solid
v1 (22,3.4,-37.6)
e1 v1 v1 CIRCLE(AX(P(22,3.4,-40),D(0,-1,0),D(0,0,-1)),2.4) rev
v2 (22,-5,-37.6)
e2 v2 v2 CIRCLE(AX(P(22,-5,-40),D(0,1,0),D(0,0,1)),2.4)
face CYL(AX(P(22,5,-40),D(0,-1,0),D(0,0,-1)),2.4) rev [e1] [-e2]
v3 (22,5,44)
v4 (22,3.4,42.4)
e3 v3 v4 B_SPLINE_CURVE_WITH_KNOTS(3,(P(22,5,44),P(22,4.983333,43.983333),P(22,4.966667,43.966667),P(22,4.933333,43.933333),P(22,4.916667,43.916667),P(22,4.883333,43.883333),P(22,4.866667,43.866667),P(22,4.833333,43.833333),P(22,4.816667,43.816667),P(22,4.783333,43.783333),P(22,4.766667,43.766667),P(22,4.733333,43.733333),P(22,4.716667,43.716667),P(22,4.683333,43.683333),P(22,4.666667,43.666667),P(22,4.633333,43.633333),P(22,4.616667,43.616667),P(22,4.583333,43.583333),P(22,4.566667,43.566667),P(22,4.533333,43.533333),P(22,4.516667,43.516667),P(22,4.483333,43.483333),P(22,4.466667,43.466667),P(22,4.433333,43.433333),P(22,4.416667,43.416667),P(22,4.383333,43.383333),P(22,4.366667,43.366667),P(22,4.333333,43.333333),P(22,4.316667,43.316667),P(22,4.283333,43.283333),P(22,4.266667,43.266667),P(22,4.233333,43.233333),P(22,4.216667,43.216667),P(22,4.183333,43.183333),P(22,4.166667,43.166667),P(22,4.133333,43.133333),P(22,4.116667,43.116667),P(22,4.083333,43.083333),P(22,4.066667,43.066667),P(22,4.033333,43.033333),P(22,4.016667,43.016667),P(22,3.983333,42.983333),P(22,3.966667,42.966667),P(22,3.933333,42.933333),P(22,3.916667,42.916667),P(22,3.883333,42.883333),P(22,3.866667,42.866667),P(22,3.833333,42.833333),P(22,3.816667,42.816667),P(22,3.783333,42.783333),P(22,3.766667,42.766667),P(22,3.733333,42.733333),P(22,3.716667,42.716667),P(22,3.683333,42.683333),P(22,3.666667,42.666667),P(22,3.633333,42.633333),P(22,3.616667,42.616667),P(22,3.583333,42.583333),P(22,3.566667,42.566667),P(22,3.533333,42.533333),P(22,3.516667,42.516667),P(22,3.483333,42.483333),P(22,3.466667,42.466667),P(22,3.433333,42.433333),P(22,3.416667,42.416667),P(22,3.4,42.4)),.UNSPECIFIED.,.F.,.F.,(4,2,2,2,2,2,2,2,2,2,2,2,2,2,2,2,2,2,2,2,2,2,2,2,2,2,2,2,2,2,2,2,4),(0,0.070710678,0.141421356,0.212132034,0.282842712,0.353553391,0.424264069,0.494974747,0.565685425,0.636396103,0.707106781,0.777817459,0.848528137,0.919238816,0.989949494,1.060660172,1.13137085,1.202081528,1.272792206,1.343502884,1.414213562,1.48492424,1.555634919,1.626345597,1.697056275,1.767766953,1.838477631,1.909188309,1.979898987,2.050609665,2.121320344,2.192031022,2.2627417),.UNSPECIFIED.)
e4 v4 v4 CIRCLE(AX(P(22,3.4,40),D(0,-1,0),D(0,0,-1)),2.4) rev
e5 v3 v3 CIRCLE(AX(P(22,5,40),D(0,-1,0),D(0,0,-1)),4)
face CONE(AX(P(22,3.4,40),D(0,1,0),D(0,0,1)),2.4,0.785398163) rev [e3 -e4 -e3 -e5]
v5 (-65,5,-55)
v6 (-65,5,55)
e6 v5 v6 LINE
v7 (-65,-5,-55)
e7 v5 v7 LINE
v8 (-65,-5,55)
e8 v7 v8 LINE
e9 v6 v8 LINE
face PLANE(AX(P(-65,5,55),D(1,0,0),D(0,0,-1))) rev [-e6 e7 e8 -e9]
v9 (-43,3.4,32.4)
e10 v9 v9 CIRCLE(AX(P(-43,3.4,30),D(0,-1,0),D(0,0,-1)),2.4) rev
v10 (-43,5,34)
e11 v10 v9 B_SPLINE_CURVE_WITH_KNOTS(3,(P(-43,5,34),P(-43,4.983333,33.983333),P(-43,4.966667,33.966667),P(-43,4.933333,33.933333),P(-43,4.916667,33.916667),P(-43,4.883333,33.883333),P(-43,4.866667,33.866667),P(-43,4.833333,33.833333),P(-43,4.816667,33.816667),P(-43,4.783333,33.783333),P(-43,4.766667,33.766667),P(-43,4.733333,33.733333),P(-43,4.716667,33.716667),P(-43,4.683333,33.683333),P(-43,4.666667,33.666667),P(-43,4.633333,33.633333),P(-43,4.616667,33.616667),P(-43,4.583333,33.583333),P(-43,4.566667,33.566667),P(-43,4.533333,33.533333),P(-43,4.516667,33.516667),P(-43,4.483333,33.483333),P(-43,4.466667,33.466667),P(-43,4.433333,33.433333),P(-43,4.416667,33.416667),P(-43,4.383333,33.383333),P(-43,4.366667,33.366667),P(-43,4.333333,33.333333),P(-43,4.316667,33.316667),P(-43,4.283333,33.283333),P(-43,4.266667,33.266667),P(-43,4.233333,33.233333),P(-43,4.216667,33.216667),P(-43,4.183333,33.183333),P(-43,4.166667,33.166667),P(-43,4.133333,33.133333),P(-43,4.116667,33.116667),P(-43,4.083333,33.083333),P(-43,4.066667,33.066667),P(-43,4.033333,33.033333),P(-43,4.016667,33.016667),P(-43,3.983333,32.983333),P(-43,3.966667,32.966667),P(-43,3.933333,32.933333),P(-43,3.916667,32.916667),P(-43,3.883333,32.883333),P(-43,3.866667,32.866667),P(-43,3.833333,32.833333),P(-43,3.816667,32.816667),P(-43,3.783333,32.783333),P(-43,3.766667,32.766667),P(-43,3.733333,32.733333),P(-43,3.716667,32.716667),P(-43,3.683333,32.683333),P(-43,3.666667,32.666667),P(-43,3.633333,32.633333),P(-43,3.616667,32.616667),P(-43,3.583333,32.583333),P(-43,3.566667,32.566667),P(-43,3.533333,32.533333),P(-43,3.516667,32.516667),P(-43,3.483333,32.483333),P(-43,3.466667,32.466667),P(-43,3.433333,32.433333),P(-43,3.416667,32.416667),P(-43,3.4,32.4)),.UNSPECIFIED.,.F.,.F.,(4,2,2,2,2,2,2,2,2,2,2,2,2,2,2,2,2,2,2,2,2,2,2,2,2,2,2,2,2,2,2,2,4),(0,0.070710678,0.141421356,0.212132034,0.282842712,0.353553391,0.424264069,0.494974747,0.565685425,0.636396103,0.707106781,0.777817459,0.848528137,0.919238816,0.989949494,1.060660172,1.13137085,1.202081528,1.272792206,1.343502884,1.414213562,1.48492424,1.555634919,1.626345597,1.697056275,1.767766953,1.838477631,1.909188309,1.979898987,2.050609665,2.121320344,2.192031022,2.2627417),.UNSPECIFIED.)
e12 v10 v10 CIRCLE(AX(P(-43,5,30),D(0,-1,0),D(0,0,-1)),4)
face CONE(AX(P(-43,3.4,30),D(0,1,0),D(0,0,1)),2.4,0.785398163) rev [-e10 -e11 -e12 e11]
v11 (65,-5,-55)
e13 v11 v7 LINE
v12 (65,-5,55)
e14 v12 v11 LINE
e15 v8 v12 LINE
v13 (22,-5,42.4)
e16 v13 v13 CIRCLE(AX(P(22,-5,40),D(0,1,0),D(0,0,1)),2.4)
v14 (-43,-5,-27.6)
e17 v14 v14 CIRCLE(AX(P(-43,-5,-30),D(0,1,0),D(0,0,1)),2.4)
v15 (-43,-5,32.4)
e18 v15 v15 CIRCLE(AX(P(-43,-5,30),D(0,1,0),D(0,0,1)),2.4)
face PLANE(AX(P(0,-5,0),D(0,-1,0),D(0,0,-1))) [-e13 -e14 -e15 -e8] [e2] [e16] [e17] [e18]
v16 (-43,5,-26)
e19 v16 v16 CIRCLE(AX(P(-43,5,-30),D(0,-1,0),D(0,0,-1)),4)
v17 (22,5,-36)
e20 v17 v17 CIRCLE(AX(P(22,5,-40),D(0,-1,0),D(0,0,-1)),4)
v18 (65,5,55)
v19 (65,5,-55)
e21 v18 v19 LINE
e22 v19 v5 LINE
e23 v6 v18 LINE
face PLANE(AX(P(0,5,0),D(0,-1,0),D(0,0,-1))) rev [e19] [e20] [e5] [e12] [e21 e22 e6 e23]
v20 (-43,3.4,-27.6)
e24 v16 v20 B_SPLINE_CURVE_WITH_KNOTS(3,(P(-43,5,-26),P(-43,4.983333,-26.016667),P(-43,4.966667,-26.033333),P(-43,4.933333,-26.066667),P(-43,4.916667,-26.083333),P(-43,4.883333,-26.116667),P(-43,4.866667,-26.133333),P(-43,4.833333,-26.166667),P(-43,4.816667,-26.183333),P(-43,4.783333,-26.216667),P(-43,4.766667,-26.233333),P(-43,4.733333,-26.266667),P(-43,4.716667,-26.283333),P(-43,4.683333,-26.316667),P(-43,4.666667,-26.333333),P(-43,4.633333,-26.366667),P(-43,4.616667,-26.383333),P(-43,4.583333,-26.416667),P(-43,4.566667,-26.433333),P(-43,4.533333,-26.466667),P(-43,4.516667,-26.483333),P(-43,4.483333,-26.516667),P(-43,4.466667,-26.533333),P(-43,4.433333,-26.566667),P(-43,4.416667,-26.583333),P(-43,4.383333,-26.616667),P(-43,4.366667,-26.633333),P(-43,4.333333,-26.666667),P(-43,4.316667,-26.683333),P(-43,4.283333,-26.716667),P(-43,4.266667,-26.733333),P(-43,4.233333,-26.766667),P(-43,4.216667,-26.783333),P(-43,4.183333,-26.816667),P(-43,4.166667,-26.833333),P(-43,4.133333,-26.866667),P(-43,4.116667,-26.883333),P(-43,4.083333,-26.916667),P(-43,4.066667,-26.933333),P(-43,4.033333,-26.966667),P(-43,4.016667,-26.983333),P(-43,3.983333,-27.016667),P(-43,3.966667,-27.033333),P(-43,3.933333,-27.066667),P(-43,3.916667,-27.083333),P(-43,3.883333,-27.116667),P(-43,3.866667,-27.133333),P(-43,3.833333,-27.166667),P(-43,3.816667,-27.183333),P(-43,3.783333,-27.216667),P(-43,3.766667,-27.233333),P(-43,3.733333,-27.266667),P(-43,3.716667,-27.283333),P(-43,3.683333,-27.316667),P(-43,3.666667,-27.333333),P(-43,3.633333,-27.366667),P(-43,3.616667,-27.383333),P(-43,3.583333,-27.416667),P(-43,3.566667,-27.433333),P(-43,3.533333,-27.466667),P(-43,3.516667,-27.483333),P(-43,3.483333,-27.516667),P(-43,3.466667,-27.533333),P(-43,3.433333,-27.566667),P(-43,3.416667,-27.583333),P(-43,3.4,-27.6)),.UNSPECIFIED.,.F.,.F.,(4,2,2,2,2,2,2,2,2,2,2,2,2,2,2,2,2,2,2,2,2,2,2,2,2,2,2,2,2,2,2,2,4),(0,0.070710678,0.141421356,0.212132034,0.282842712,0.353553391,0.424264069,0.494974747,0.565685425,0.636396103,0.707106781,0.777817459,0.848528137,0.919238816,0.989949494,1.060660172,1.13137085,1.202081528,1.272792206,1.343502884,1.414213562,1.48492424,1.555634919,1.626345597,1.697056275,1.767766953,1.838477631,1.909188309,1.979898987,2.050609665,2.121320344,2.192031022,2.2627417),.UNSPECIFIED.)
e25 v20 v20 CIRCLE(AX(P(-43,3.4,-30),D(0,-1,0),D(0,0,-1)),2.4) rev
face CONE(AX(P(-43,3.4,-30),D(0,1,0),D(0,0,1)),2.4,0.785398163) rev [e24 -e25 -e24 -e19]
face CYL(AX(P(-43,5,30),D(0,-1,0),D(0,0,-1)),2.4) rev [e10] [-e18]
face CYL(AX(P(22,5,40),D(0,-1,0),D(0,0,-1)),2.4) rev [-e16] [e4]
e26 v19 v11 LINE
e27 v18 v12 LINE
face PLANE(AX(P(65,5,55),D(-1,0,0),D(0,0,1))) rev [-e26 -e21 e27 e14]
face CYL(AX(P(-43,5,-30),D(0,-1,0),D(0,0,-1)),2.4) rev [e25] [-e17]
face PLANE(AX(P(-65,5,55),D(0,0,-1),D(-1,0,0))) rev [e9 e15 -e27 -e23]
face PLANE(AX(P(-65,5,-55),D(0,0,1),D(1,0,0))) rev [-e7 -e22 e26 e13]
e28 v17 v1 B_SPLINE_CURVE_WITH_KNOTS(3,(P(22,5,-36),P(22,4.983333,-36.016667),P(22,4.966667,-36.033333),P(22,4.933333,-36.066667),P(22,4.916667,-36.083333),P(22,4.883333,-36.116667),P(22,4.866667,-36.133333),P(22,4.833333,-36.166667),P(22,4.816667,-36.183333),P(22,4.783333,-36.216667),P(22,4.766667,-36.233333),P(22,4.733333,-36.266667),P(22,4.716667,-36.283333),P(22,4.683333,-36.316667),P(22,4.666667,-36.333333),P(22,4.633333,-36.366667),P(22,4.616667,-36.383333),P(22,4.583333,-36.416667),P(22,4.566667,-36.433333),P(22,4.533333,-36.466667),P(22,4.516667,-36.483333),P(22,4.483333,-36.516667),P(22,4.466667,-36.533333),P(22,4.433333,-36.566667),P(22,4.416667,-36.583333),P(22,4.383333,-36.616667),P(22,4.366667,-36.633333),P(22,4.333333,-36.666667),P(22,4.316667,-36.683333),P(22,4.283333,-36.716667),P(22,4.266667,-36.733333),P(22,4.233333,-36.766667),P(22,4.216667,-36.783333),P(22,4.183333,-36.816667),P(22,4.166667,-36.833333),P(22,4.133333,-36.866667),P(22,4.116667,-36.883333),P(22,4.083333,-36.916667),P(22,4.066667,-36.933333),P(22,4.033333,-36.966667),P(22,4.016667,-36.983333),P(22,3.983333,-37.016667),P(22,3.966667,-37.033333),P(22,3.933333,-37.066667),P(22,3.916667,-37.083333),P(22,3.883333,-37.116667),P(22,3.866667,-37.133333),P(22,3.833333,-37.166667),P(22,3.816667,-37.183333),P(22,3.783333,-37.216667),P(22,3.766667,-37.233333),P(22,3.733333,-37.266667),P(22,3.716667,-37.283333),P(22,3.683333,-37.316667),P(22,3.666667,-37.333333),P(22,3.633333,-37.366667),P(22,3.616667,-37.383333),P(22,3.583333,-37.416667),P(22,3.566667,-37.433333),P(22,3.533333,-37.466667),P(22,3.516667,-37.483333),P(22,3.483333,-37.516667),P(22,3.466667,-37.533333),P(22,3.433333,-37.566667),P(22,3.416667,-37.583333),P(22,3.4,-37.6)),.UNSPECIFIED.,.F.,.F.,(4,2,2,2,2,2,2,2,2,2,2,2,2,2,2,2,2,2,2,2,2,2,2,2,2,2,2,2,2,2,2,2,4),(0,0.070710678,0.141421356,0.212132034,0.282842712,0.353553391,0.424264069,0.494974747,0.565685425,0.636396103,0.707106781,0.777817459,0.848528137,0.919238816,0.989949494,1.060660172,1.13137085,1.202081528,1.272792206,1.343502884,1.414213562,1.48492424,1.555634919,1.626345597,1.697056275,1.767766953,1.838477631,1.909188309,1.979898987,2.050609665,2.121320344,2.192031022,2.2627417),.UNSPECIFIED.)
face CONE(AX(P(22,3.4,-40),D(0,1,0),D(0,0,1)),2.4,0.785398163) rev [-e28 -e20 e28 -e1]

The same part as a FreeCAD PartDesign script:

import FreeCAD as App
import Part
import Sketcher

V = App.Vector
Q = App.Units.Quantity


def edges_at(feature, points):
    """Names of the edges that pass closest to the given points."""
    edges = feature.Shape.Edges
    near = lambda p: min(range(len(edges)), key=lambda i: edges[i].distToShape(Part.Vertex(*p))[0])
    return sorted({f"Edge{near(p) + 1}" for p in points})

doc = App.newDocument("Part")
body = doc.addObject("PartDesign::Body", "Body")

# Sketch on XZ plane
sketch1 = body.newObject("Sketcher::SketchObject", "Sketch")
sketch1.AttachmentSupport = (doc.getObject("XZ_Plane"), [""])
sketch1.MapMode = "FlatFace"
sketch1.addGeometry([
    Part.LineSegment(V(-65, -55, 0), V(-65, 55, 0)),  # 0
    Part.LineSegment(V(-65, 55, 0), V(65, 55, 0)),  # 1
    Part.LineSegment(V(65, 55, 0), V(65, -55, 0)),  # 2
    Part.LineSegment(V(65, -55, 0), V(-65, -55, 0)),  # 3
    Part.Circle(V(-43, 30, 0), V(0, 0, 1), 2.4),  # 4
    Part.Circle(V(22, 40, 0), V(0, 0, 1), 2.4),  # 5
    Part.Circle(V(-43, -30, 0), V(0, 0, 1), 2.4),  # 6
    Part.Circle(V(22, -40, 0), V(0, 0, 1), 2.4),  # 7
], False)
sketch1.addConstraint([
    Sketcher.Constraint("Coincident", 0, 2, 1, 1),
    Sketcher.Constraint("Coincident", 1, 2, 2, 1),
    Sketcher.Constraint("Coincident", 2, 2, 3, 1),
    Sketcher.Constraint("Coincident", 3, 2, 0, 1),
    Sketcher.Constraint("Vertical", 0),
    Sketcher.Constraint("Horizontal", 1),
    Sketcher.Constraint("Vertical", 2),
    Sketcher.Constraint("Horizontal", 3),
    Sketcher.Constraint("Equal", 4, 5),
    Sketcher.Constraint("Equal", 5, 6),
    Sketcher.Constraint("Equal", 6, 7),
    Sketcher.Constraint("Symmetric", 0, 2, 2, 2, -1, 1),
    Sketcher.Constraint("Symmetric", 4, 3, 6, 3, -1),
    Sketcher.Constraint("Symmetric", 5, 3, 7, 3, -1),
    Sketcher.Constraint("Diameter", 4, Q("4.8 mm")),
    Sketcher.Constraint("DistanceX", 1, 1, 1, 2, Q("130 mm")),
    Sketcher.Constraint("DistanceY", 0, 1, 0, 2, Q("110 mm")),
    Sketcher.Constraint("DistanceX", 4, 3, -1, 1, Q("43 mm")),
    Sketcher.Constraint("DistanceY", -1, 1, 4, 3, Q("30 mm")),
    Sketcher.Constraint("DistanceX", -1, 1, 5, 3, Q("22 mm")),
    Sketcher.Constraint("DistanceY", -1, 1, 5, 3, Q("40 mm")),
])
pad1 = body.newObject("PartDesign::Pad", "Pad")
pad1.Profile = sketch1
pad1.Length = 10
pad1.Midplane = True
doc.recompute()

chamfer = body.newObject("PartDesign::Chamfer", "Chamfer")
chamfer.Base = (pad1, edges_at(pad1, [
    (-43, 5, -32.4),
    (-43, 5, 27.6),
    (22, 5, -42.4),
    (22, 5, 37.6),
]))
chamfer.Size = 1.6

doc.recompute()
